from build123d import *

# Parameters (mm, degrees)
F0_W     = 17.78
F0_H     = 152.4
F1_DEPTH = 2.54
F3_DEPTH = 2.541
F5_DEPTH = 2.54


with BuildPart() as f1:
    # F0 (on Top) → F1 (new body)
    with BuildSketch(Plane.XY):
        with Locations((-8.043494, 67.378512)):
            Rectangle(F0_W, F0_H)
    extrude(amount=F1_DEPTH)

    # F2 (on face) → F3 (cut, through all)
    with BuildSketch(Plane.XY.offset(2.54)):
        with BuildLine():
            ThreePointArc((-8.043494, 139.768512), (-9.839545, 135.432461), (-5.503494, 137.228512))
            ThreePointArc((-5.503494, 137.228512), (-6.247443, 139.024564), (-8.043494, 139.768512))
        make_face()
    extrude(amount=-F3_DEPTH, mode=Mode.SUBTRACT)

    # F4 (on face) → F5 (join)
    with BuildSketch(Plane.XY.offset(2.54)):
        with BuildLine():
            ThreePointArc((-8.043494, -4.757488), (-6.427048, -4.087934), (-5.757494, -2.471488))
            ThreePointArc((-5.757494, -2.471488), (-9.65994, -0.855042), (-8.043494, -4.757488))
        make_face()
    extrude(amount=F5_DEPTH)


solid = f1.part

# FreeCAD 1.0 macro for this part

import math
import FreeCAD as App
import Part
import Sketcher
Q = App.Units.Quantity

doc = App.newDocument("Part")
body = doc.addObject("PartDesign::Body", "Body")

sketch1 = body.newObject("Sketcher::SketchObject", "Sketch")
sketch1.AttachmentSupport = (doc.getObject("XY_Plane"), [""])
sketch1.MapMode = "FlatFace"
sketch1.addGeometry(Part.LineSegment(App.Vector(-17, 144, 0), App.Vector(-17, -9, 0)), False)
sketch1.addGeometry(Part.LineSegment(App.Vector(-17, -9, 0), App.Vector(1, -9, 0)), False)
sketch1.addGeometry(Part.LineSegment(App.Vector(1, -9, 0), App.Vector(1, 144, 0)), False)
sketch1.addGeometry(Part.LineSegment(App.Vector(1, 144, 0), App.Vector(-17, 144, 0)), False)
sketch1.addConstraint(Sketcher.Constraint("Coincident", 0, 2, 1, 1))
sketch1.addConstraint(Sketcher.Constraint("Coincident", 1, 2, 2, 1))
sketch1.addConstraint(Sketcher.Constraint("Coincident", 2, 2, 3, 1))
sketch1.addConstraint(Sketcher.Constraint("Coincident", 3, 2, 0, 1))
sketch1.addConstraint(Sketcher.Constraint("Vertical", 0))
sketch1.addConstraint(Sketcher.Constraint("Horizontal", 1))
sketch1.addConstraint(Sketcher.Constraint("Vertical", 2))
sketch1.addConstraint(Sketcher.Constraint("Horizontal", 3))
sketch1.addConstraint(Sketcher.Constraint("DistanceY", 0, 2, 0, 1, Q("6 in")))
sketch1.addConstraint(Sketcher.Constraint("DistanceX", 1, 1, 1, 2, Q("0.7 in")))
sketch1.addConstraint(Sketcher.Constraint("DistanceY", -1, 1, 2, 2, 143.578512))
sketch1.addConstraint(Sketcher.Constraint("DistanceX", 0, 2, -1, 1, 16.933494))
pad1 = body.newObject("PartDesign::Pad", "Pad")
pad1.Profile = sketch1
pad1.Length = Q("0.1 in")

sketch2 = body.newObject("Sketcher::SketchObject", "Sketch001")
sketch2.AttachmentSupport = (doc.getObject("XY_Plane"), [""])
sketch2.MapMode = "FlatFace"
sketch2.AttachmentOffset = App.Placement(App.Vector(0, 0, 0.1 * 25.4), App.Rotation())
sketch2.addGeometry(Part.ArcOfCircle(Part.Circle(App.Vector(-8, 137.2, 0), App.Vector(0, 0, 1), 2.5), math.radians(90), math.radians(360)), False)
sketch2.addGeometry(Part.ArcOfCircle(Part.Circle(App.Vector(-8, 137.2, 0), App.Vector(0, 0, 1), 2.5), math.radians(0), math.radians(90)), False)
sketch2.addConstraint(Sketcher.Constraint("Tangent", 0, 1, 1, 2))
sketch2.addConstraint(Sketcher.Constraint("Coincident", 1, 1, 0, 2))
sketch2.addConstraint(Sketcher.Constraint("Horizontal", 0, 3, 1, 1))
sketch2.addConstraint(Sketcher.Constraint("Vertical", 1, 3, 0, 1))
sketch2.addConstraint(Sketcher.Constraint("Radius", 0, Q("0.1 in")))
sketch2.addConstraint(Sketcher.Constraint("DistanceY", -1, 1, 0, 1, 139.768512))
sketch2.addConstraint(Sketcher.Constraint("DistanceX", 0, 3, -1, 1, 8.043494))
pocket1 = body.newObject("PartDesign::Pocket", "Pocket")
pocket1.Profile = sketch2
pocket1.Type = "ThroughAll"

sketch3 = body.newObject("Sketcher::SketchObject", "Sketch002")
sketch3.AttachmentSupport = (doc.getObject("XY_Plane"), [""])
sketch3.MapMode = "FlatFace"
sketch3.AttachmentOffset = App.Placement(App.Vector(0, 0, 0.1 * 25.4), App.Rotation())
sketch3.addGeometry(Part.ArcOfCircle(Part.Circle(App.Vector(-8, -2.5, 0), App.Vector(0, 0, 1), 2.3), math.radians(-90), math.radians(0)), False)
sketch3.addGeometry(Part.ArcOfCircle(Part.Circle(App.Vector(-8, -2.5, 0), App.Vector(0, 0, 1), 2.3), math.radians(0), math.radians(270)), False)
sketch3.addConstraint(Sketcher.Constraint("Tangent", 0, 1, 1, 2))
sketch3.addConstraint(Sketcher.Constraint("Coincident", 1, 1, 0, 2))
sketch3.addConstraint(Sketcher.Constraint("Horizontal", 0, 3, 1, 1))
sketch3.addConstraint(Sketcher.Constraint("Vertical", 1, 3, 0, 1))
sketch3.addConstraint(Sketcher.Constraint("Radius", 0, Q("0.09 in")))
sketch3.addConstraint(Sketcher.Constraint("DistanceY", 1, 3, -1, 1, 2.471488))
sketch3.addConstraint(Sketcher.Constraint("DistanceX", 0, 3, -1, 1, 8.043494))
pad2 = body.newObject("PartDesign::Pad", "Pad001")
pad2.Profile = sketch3
pad2.Length = Q("0.1 in")

doc.recompute()
